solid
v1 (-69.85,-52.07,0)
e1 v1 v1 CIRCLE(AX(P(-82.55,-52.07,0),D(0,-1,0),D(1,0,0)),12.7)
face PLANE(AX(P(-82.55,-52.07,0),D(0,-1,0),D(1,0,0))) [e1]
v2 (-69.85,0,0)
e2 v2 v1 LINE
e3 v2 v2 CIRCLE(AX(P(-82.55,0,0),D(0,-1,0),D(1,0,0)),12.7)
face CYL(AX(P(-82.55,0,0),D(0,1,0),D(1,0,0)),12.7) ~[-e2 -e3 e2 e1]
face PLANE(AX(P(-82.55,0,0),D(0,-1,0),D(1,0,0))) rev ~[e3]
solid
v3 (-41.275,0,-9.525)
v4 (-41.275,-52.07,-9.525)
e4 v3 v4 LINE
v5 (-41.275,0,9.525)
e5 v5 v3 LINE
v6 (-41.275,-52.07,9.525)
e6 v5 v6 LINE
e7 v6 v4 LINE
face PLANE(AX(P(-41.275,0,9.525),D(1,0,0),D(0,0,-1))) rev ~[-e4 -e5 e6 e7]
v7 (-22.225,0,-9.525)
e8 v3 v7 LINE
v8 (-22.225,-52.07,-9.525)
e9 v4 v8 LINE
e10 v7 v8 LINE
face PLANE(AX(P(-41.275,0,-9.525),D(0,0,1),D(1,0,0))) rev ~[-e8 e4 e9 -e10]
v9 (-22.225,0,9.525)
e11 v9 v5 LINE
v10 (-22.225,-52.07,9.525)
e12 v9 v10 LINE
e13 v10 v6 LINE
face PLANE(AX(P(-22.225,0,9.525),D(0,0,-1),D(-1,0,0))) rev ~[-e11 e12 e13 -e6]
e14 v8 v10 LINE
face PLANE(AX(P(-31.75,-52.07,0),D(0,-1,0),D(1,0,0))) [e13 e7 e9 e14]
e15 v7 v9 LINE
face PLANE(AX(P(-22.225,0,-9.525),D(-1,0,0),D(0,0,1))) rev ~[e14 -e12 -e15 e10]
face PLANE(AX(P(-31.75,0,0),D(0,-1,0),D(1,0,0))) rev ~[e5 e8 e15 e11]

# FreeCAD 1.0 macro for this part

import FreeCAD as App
import Part
import Sketcher
from FreeCAD import Vector
Q = App.Units.Quantity

doc = App.newDocument("Part")
body = doc.addObject("PartDesign::Body", "Body")
body.AllowCompound = True

# Sketch on XZ plane
sketch1 = body.newObject("Sketcher::SketchObject", "Sketch")
sketch1.AttachmentSupport = (doc.getObject("XZ_Plane"), [""])
sketch1.MapMode = "FlatFace"
sketch1.addGeometry(Part.Circle(Vector(-82.55, 0, 0), Vector(0, 0, 1), 12.7), False)
sketch1.addGeometry(Part.LineSegment(Vector(-22.225, -9.525, 0), Vector(-22.225, 9.525, 0)), False)
sketch1.addGeometry(Part.LineSegment(Vector(-22.225, 9.525, 0), Vector(-41.275, 9.525, 0)), False)
sketch1.addGeometry(Part.LineSegment(Vector(-41.275, 9.525, 0), Vector(-41.275, -9.525, 0)), False)
sketch1.addGeometry(Part.LineSegment(Vector(-41.275, -9.525, 0), Vector(-22.225, -9.525, 0)), False)
sketch1.addConstraint(Sketcher.Constraint("Coincident", 1, 2, 2, 1))
sketch1.addConstraint(Sketcher.Constraint("Coincident", 2, 2, 3, 1))
sketch1.addConstraint(Sketcher.Constraint("Coincident", 3, 2, 4, 1))
sketch1.addConstraint(Sketcher.Constraint("Coincident", 4, 2, 1, 1))
sketch1.addConstraint(Sketcher.Constraint("Vertical", 1))
sketch1.addConstraint(Sketcher.Constraint("Horizontal", 2))
sketch1.addConstraint(Sketcher.Constraint("Vertical", 3))
sketch1.addConstraint(Sketcher.Constraint("Horizontal", 4))
sketch1.addConstraint(Sketcher.Constraint("PointOnObject", 0, 3, -1))
sketch1.addConstraint(Sketcher.Constraint("Equal", 4, 1))
sketch1.addConstraint(Sketcher.Constraint("Diameter", 0, Q("1 in")))
sketch1.addConstraint(Sketcher.Constraint("DistanceX", 2, 2, 2, 1, Q("0.75 in")))
sketch1.addConstraint(Sketcher.Constraint("DistanceX", 0, 3, -1, 1, Q("3.25 in")))
sketch1.addConstraint(Sketcher.Constraint("DistanceX", 1, 2, -1, 1, Q("0.875 in")))
sketch1.addConstraint(Sketcher.Constraint("DistanceY", -1, 1, 1, 2, Q("0.375 in")))
pad1 = body.newObject("PartDesign::Pad", "Pad")
pad1.Profile = sketch1
pad1.Length = Q("2.05 in")

doc.recompute()
